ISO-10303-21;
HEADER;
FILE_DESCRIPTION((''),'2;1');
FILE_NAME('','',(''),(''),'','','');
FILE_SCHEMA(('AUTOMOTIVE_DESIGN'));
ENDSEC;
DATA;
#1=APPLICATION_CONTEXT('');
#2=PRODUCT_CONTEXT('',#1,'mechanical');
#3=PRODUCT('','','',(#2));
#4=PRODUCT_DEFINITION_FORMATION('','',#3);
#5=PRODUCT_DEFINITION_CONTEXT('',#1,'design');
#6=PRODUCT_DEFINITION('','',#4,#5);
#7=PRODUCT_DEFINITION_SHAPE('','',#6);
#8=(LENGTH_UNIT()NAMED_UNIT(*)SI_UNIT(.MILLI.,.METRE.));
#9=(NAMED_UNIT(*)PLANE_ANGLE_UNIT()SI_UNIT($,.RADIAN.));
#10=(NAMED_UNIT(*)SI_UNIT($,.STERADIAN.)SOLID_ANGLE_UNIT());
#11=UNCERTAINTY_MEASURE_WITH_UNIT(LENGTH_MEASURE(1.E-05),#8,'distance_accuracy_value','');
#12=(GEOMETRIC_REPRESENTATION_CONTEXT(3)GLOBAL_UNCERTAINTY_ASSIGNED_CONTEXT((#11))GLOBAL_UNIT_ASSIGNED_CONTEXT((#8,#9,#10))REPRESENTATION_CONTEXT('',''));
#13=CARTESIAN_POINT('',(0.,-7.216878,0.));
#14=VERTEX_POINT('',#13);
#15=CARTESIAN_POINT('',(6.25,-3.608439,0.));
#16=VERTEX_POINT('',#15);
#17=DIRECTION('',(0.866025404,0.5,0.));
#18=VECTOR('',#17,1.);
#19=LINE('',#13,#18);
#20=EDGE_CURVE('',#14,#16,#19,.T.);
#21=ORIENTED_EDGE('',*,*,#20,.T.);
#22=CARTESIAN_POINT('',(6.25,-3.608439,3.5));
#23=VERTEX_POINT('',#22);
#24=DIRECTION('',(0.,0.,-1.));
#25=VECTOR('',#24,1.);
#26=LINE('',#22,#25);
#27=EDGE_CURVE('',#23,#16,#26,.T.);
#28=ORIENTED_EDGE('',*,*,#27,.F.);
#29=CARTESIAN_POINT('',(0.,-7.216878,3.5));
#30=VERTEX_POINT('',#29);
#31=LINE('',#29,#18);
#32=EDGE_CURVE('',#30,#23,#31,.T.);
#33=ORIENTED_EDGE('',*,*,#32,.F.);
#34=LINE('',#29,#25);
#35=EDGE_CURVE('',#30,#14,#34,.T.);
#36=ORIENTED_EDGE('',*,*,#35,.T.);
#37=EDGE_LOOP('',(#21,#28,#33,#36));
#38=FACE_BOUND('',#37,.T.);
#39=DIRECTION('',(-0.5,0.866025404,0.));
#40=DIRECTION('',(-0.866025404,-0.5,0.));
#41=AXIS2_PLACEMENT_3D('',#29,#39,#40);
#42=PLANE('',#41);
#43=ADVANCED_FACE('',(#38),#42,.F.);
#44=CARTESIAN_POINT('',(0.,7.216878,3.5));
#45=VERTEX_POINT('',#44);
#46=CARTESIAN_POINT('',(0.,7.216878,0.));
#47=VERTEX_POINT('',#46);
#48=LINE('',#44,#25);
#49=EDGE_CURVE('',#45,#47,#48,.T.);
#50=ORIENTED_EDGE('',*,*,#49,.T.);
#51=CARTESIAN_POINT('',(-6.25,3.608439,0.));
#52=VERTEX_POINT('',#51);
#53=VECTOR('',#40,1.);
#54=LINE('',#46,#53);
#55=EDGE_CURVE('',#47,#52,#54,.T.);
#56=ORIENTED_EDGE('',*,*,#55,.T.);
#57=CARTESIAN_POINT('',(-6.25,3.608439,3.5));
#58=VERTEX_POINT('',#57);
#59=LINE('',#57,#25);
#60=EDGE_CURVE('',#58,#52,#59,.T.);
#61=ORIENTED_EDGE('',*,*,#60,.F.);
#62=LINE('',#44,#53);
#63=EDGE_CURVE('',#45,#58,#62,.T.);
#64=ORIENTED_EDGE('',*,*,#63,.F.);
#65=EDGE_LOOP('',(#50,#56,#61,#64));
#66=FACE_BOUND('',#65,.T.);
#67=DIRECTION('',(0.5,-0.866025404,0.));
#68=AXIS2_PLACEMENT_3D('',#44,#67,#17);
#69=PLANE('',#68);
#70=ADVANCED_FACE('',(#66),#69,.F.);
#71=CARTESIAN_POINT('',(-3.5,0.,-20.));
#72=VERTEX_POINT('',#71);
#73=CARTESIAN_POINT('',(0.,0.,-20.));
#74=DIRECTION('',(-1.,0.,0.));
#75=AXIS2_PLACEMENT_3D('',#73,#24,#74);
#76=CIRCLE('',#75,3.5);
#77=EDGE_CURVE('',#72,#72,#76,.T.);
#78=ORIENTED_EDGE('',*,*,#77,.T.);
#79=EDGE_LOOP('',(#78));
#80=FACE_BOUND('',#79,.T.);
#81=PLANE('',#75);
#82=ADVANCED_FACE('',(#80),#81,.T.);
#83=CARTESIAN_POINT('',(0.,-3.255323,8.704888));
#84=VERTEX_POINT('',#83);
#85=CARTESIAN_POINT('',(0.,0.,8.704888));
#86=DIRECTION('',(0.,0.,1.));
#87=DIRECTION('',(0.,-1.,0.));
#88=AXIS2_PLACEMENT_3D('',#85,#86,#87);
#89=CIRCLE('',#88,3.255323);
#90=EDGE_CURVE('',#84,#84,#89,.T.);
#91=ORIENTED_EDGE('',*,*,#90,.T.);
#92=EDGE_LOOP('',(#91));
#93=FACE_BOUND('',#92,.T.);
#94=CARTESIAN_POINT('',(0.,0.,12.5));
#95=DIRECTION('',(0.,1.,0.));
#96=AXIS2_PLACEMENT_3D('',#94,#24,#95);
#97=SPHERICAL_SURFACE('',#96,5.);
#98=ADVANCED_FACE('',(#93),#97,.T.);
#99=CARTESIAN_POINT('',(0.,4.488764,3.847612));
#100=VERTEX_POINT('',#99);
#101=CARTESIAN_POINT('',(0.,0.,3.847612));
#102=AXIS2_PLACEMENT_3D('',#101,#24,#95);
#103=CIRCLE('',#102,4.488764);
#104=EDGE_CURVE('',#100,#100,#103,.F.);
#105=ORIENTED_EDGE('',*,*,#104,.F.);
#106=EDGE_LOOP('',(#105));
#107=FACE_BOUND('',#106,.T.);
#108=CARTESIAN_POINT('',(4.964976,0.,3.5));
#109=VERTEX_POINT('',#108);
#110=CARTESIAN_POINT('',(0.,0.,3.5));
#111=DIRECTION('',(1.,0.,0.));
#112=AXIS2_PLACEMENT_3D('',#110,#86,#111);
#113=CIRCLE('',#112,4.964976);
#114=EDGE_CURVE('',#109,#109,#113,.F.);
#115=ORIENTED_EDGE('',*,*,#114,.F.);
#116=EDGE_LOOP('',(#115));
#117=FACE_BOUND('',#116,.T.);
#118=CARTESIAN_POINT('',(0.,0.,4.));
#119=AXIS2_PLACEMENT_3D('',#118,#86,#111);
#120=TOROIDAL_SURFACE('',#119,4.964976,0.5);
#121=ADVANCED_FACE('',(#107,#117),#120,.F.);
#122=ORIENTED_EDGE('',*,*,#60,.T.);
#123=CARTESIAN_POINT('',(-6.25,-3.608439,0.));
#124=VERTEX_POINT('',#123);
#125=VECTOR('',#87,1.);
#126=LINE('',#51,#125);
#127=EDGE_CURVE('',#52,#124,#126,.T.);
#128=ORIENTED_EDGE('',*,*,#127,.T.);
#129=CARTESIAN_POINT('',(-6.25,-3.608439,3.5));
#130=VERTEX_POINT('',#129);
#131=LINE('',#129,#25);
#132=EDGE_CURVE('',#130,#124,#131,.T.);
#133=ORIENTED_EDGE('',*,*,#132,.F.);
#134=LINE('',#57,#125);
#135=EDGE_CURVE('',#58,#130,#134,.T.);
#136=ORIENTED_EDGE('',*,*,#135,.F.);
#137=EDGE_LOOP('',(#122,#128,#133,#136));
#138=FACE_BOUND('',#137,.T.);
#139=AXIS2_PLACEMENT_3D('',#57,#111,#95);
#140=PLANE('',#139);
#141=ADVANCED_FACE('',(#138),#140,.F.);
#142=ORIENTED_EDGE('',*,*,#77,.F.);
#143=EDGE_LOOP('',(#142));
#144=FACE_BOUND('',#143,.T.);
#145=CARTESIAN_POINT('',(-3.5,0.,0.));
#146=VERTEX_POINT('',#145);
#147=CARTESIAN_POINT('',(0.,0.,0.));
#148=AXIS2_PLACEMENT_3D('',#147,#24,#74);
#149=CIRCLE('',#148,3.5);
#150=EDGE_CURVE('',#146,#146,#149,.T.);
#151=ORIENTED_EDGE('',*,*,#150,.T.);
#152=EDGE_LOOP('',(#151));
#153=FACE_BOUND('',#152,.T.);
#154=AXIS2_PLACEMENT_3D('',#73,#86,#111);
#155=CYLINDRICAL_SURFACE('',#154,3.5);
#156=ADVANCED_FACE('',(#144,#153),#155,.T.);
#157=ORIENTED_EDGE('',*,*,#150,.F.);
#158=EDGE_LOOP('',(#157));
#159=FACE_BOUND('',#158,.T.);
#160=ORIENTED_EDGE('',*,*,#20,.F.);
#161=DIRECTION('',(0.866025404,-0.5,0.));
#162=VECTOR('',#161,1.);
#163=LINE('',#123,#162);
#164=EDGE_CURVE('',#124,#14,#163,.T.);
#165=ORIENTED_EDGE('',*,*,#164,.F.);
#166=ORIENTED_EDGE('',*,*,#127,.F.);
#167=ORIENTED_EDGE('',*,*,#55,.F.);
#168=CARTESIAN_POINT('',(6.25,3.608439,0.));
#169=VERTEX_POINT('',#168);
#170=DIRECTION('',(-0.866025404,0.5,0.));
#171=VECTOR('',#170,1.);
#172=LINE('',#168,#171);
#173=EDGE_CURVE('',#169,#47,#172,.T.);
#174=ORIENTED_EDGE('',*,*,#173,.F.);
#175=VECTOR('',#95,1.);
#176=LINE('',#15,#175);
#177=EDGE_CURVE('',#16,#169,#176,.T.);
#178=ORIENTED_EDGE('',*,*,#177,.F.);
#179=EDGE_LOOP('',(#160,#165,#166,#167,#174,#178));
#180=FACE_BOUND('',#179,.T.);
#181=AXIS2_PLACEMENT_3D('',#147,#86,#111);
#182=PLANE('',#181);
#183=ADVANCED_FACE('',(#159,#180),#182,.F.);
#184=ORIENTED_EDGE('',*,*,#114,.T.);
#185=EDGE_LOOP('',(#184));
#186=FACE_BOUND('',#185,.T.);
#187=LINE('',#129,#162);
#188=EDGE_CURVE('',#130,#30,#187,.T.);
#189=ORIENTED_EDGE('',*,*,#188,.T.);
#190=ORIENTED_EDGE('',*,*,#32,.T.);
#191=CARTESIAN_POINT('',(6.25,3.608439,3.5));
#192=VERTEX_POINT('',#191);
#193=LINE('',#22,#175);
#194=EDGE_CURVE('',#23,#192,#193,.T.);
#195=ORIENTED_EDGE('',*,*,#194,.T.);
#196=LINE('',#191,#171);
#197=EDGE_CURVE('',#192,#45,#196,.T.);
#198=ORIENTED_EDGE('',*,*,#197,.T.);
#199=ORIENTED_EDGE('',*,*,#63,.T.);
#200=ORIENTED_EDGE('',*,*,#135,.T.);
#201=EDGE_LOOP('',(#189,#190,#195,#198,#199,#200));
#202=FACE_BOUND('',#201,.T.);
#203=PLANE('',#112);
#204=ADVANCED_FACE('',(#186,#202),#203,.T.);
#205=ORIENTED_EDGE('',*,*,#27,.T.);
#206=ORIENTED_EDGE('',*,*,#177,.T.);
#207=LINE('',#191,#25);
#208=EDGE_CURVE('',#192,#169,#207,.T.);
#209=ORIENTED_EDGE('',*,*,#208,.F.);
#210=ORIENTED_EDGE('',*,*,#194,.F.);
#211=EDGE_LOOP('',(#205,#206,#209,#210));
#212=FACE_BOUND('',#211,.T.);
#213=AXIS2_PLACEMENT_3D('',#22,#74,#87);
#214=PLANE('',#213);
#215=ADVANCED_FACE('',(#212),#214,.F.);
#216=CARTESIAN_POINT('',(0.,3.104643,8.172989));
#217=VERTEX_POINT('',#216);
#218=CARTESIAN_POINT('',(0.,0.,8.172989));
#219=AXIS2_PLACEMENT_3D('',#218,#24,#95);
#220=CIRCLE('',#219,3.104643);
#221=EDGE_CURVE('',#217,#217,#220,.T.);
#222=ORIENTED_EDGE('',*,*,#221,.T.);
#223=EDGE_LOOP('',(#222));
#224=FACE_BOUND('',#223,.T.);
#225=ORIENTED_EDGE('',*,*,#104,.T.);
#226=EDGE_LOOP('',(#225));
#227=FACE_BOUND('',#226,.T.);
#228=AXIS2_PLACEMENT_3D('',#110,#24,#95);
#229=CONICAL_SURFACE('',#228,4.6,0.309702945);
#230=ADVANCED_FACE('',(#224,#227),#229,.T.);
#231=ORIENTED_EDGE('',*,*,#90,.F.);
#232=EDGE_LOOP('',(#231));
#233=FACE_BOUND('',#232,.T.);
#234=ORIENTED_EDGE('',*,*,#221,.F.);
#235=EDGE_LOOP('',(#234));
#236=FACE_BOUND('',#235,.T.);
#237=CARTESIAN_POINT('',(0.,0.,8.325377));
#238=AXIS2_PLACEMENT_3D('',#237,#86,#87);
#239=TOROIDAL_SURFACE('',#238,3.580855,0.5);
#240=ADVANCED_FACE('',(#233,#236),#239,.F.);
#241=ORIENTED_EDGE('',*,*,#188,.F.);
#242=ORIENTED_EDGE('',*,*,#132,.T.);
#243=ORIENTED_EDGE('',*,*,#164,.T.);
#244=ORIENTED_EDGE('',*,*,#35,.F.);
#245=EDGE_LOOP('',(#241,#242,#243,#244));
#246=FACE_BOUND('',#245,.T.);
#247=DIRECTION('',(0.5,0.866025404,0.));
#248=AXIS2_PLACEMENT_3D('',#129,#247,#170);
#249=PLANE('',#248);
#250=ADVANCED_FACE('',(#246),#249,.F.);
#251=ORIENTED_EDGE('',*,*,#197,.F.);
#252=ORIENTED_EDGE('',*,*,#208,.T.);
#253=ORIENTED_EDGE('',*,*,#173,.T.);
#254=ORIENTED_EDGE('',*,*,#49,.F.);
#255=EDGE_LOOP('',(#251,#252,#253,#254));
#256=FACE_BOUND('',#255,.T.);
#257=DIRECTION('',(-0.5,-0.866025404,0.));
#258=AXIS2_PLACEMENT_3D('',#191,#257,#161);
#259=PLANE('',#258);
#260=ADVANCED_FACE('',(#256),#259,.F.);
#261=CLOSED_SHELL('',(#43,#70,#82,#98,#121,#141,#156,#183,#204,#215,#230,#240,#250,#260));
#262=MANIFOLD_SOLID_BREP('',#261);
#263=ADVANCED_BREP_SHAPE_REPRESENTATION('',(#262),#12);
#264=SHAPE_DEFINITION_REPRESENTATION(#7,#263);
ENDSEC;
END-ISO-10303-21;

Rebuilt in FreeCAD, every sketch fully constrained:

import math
import FreeCAD as App
import Part
import Sketcher
from FreeCAD import Vector
Q = App.Units.Quantity


def edges_at(feature, points):
    """Names of the edges that pass closest to the given points."""
    edges = feature.Shape.Edges
    near = lambda p: min(range(len(edges)), key=lambda i: edges[i].distToShape(Part.Vertex(*p))[0])
    return sorted({f"Edge{near(p) + 1}" for p in points})


def add_polygon(sketch, points):
    """Adds a closed chain of lines whose ends are joined by coincident constraints."""
    first, n = sketch.GeometryCount, len(points)
    for a, b in zip(points, points[1:] + points[:1]):
        sketch.addGeometry(Part.LineSegment(App.Vector(*a, 0), App.Vector(*b, 0)), False)
    for i in range(n):
        sketch.addConstraint(Sketcher.Constraint("Coincident", first + i, 2, first + (i + 1) % n, 1))

doc = App.newDocument("Part")
body = doc.addObject("PartDesign::Body", "Body")

# Sketch on XY plane
sketch1 = body.newObject("Sketcher::SketchObject", "Sketch")
sketch1.AttachmentSupport = (doc.getObject("XY_Plane"), [""])
sketch1.MapMode = "FlatFace"
add_polygon(sketch1, [(0, 7.216878), (-6.25, 3.608439), (-6.25, -3.608439), (0, -7.216878), (6.25, -3.608439), (6.25, 3.608439)])  # lines 0-5
sketch1.addConstraint(Sketcher.Constraint("Vertical", 1))
sketch1.addConstraint(Sketcher.Constraint("Vertical", 4))
sketch1.addConstraint(Sketcher.Constraint("Symmetric", 0, 2, 3, 2, -1, 1))
sketch1.addConstraint(Sketcher.Constraint("Symmetric", 2, 2, 5, 2, -1, 1))
sketch1.addConstraint(Sketcher.Constraint("PointOnObject", 2, 2, -2))
sketch1.addConstraint(Sketcher.Constraint("Parallel", 2, 5))
sketch1.addConstraint(Sketcher.Constraint("Horizontal", 1, 2, 3, 2))
sketch1.addConstraint(Sketcher.Constraint("Angle", 0, Q("-150 deg")))
sketch1.addConstraint(Sketcher.Constraint("DistanceX", 1, 2, 3, 2, Q("12.5 mm")))
sketch1.addConstraint(Sketcher.Constraint("DistanceY", 1, 2, 1, 1, Q("7.216878 mm")))
pad1 = body.newObject("PartDesign::Pad", "Pad")
pad1.Profile = sketch1
pad1.Length = 3.5

# Sketch on XY plane
sketch2 = body.newObject("Sketcher::SketchObject", "Sketch001")
sketch2.AttachmentSupport = (doc.getObject("XY_Plane"), [""])
sketch2.MapMode = "FlatFace"
sketch2.addGeometry(Part.Circle(Vector(0, 0, 0), Vector(0, 0, 1), 3.5), False)
sketch2.addConstraint(Sketcher.Constraint("Coincident", 0, 3, -1, 1))
sketch2.addConstraint(Sketcher.Constraint("Diameter", 0, Q("7 mm")))
pad2 = body.newObject("PartDesign::Pad", "Pad001")
pad2.Profile = sketch2
pad2.Length = 20
pad2.Reversed = True

# Sketch on YZ plane
sketch3 = body.newObject("Sketcher::SketchObject", "Sketch002")
sketch3.AttachmentSupport = (doc.getObject("YZ_Plane"), [""])
sketch3.MapMode = "FlatFace"
sketch3.addGeometry(Part.LineSegment(Vector(0, 17.5, 0), Vector(0, 3.5, 0)), False)
sketch3.addGeometry(Part.LineSegment(Vector(0, 3.5, 0), Vector(4.6, 3.5, 0)), False)
sketch3.addGeometry(Part.LineSegment(Vector(4.6, 3.5, 0), Vector(3, 8.5, 0)), False)
sketch3.addGeometry(Part.ArcOfCircle(Part.Circle(Vector(0, 12.5, 0), Vector(0, 0, 1), 5), math.radians(-53.130102), math.radians(90)), False)
sketch3.addConstraint(Sketcher.Constraint("Coincident", 0, 2, 1, 1))
sketch3.addConstraint(Sketcher.Constraint("Coincident", 1, 2, 2, 1))
sketch3.addConstraint(Sketcher.Constraint("Coincident", 2, 2, 3, 1))
sketch3.addConstraint(Sketcher.Constraint("Coincident", 3, 2, 0, 1))
sketch3.addConstraint(Sketcher.Constraint("Vertical", 0))
sketch3.addConstraint(Sketcher.Constraint("Horizontal", 1))
sketch3.addConstraint(Sketcher.Constraint("PointOnObject", 3, 3, -2))
sketch3.addConstraint(Sketcher.Constraint("PointOnObject", 0, 2, -2))
sketch3.addConstraint(Sketcher.Constraint("Radius", 3, Q("5 mm")))
sketch3.addConstraint(Sketcher.Constraint("DistanceY", 0, 2, 0, 1, Q("14 mm")))
sketch3.addConstraint(Sketcher.Constraint("DistanceX", 1, 1, 1, 2, Q("4.6 mm")))
sketch3.addConstraint(Sketcher.Constraint("DistanceX", -1, 1, 2, 2, Q("3 mm")))
sketch3.addConstraint(Sketcher.Constraint("DistanceY", -1, 1, 3, 3, Q("12.5 mm")))
revolution = body.newObject("PartDesign::Revolution", "Revolution")
revolution.Profile = sketch3
revolution.ReferenceAxis = (sketch3, ["V_Axis"])
revolution.Angle = 360
doc.recompute()

fillet = body.newObject("PartDesign::Fillet", "Fillet")
fillet.Base = (revolution, edges_at(revolution, [(0, -4.6, 3.5), (0, -3, 8.5)]))
fillet.Radius = 0.5

doc.recompute()
